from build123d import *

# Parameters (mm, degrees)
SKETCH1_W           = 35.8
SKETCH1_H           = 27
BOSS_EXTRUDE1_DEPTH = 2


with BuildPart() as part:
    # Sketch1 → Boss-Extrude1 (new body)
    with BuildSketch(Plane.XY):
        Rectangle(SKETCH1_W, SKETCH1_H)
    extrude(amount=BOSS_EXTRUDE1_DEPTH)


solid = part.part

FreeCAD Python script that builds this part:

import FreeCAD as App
import Part
import Sketcher
from FreeCAD import Vector


def add_polygon(sketch, points):
    """Adds a closed chain of lines whose ends are joined by coincident constraints."""
    first, n = sketch.GeometryCount, len(points)
    for a, b in zip(points, points[1:] + points[:1]):
        sketch.addGeometry(Part.LineSegment(App.Vector(*a, 0), App.Vector(*b, 0)), False)
    for i in range(n):
        sketch.addConstraint(Sketcher.Constraint("Coincident", first + i, 2, first + (i + 1) % n, 1))

doc = App.newDocument("Part")
body = doc.addObject("PartDesign::Body", "Body")

sketch1 = body.newObject("Sketcher::SketchObject", "Sketch")
sketch1.AttachmentSupport = (doc.getObject("XY_Plane"), [""])
sketch1.MapMode = "FlatFace"
add_polygon(sketch1, [(-18, 14), (-18, -14), (18, -14), (18, 14)])
sketch1.addConstraint(Sketcher.Constraint("Vertical", 0))
sketch1.addConstraint(Sketcher.Constraint("Horizontal", 1))
sketch1.addConstraint(Sketcher.Constraint("Vertical", 2))
sketch1.addConstraint(Sketcher.Constraint("Horizontal", 3))
sketch1.addConstraint(Sketcher.Constraint("Symmetric", 0, 2, 2, 2, -1, 1))
sketch1.addConstraint(Sketcher.Constraint("DistanceY", 0, 2, 0, 1, 27.0))
sketch1.addConstraint(Sketcher.Constraint("DistanceX", 1, 1, 1, 2, 35.8))
pad1 = body.newObject("PartDesign::Pad", "Pad")
pad1.Profile = sketch1
pad1.Length = 2

doc.recompute()
